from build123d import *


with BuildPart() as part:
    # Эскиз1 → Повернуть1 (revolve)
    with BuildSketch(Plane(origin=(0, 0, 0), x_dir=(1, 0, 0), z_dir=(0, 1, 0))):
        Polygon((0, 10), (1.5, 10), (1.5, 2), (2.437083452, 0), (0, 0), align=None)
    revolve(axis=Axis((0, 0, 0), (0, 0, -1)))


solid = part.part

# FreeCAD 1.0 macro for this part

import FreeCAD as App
import Part
import Sketcher

V = App.Vector
Q = App.Units.Quantity


def add_polygon(sketch, points):
    """Adds a closed chain of lines whose ends are joined by coincident constraints."""
    first, n = sketch.GeometryCount, len(points)
    for a, b in zip(points, points[1:] + points[:1]):
        sketch.addGeometry(Part.LineSegment(App.Vector(*a, 0), App.Vector(*b, 0)), False)
    for i in range(n):
        sketch.addConstraint(Sketcher.Constraint("Coincident", first + i, 2, first + (i + 1) % n, 1))

doc = App.newDocument("Part")
body = doc.addObject("PartDesign::Body", "Body")

# Sketch on XZ plane
sketch1 = body.newObject("Sketcher::SketchObject", "Sketch")
sketch1.AttachmentSupport = (doc.getObject("XZ_Plane"), [""])
sketch1.MapMode = "FlatFace"
add_polygon(sketch1, [(1.5, -10), (0, -10), (0, 0), (2.4, 0), (1.5, -2)])  # lines 0-4
sketch1.addConstraint(Sketcher.Constraint("Horizontal", 0))
sketch1.addConstraint(Sketcher.Constraint("Vertical", 1))
sketch1.addConstraint(Sketcher.Constraint("Horizontal", 2))
sketch1.addConstraint(Sketcher.Constraint("Vertical", 4))
sketch1.addConstraint(Sketcher.Constraint("Coincident", 1, 2, -1, 1))
sketch1.addConstraint(Sketcher.Constraint("DistanceY", 1, 1, 1, 2, Q("10 mm")))
sketch1.addConstraint(Sketcher.Constraint("DistanceY", 4, 2, 4, 1, Q("8 mm")))
sketch1.addConstraint(Sketcher.Constraint("DistanceX", 0, 2, 0, 1, Q("1.5 mm")))
sketch1.addConstraint(Sketcher.Constraint("DistanceX", 2, 1, 2, 2, Q("2.437083 mm")))
revolution = body.newObject("PartDesign::Revolution", "Revolution")
revolution.Profile = sketch1
revolution.ReferenceAxis = (sketch1, ["V_Axis"])
revolution.Angle = 360

doc.recompute()
